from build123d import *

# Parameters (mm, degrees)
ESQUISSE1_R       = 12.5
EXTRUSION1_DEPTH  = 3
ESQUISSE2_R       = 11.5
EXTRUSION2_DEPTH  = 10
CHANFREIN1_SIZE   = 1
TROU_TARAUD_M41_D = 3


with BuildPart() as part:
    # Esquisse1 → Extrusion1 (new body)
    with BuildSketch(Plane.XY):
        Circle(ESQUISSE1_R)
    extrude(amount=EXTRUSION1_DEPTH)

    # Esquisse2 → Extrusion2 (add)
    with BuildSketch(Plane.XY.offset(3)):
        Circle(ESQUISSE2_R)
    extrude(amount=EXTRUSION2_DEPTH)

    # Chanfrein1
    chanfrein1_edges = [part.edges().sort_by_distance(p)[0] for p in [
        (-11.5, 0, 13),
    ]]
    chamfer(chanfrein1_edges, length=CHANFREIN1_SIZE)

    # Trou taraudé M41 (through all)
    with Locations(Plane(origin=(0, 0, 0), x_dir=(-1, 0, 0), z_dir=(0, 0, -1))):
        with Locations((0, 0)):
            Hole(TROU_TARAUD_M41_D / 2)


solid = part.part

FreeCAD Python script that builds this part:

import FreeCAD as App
import Part
import Sketcher


def edges_at(feature, points):
    """Names of the edges that pass closest to the given points."""
    edges = feature.Shape.Edges
    near = lambda p: min(range(len(edges)), key=lambda i: edges[i].distToShape(Part.Vertex(*p))[0])
    return sorted({f"Edge{near(p) + 1}" for p in points})

doc = App.newDocument("Part")
params = doc.addObject("Spreadsheet::Sheet", "Params")
for row, (alias, value) in enumerate([
    ("sketch1_diameter", "25 mm"),
    ("pad1_length", "3 mm"),
    ("sketch2_diameter", "23 mm"),
    ("pad2_length", "10 mm"),
    ("chamfer_size", "1 mm"),
    ("sketch3_diameter", "3 mm"),
    ("hole_diameter", "3 mm"),
], start=1):
    params.set(f"A{row}", alias)
    params.set(f"B{row}", "=" + value)
    params.setAlias(f"B{row}", alias)

body = doc.addObject("PartDesign::Body", "Body")

sketch1 = body.newObject("Sketcher::SketchObject", "Sketch")
sketch1.AttachmentSupport = (doc.getObject("XY_Plane"), [""])
sketch1.MapMode = "FlatFace"
sketch1.addGeometry(Part.Circle(App.Vector(0, 0, 0), App.Vector(0, 0, 1), 12), False)
sketch1.addConstraint(Sketcher.Constraint("Coincident", 0, 3, -1, 1))
sketch1.addConstraint(Sketcher.Constraint("Diameter", 0, 25.0))
sketch1.setExpression("Constraints[1]", "Params.sketch1_diameter")
pad1 = body.newObject("PartDesign::Pad", "Pad")
pad1.Profile = sketch1
pad1.setExpression("Length", "Params.pad1_length")

sketch2 = body.newObject("Sketcher::SketchObject", "Sketch001")
sketch2.AttachmentSupport = (doc.getObject("XY_Plane"), [""])
sketch2.MapMode = "FlatFace"
sketch2.AttachmentOffset = App.Placement(App.Vector(0, 0, 3), App.Rotation())
sketch2.addGeometry(Part.Circle(App.Vector(0, 0, 0), App.Vector(0, 0, 1), 12), False)
sketch2.addConstraint(Sketcher.Constraint("Coincident", 0, 3, -1, 1))
sketch2.addConstraint(Sketcher.Constraint("Diameter", 0, 23.0))
sketch2.setExpression("Constraints[1]", "Params.sketch2_diameter")
pad2 = body.newObject("PartDesign::Pad", "Pad001")
pad2.Profile = sketch2
pad2.setExpression("Length", "Params.pad2_length")
doc.recompute()

chamfer = body.newObject("PartDesign::Chamfer", "Chamfer")
chamfer.Base = (pad2, edges_at(pad2, [(-11.5, 0, 13)]))
chamfer.setExpression("Size", "Params.chamfer_size")

sketch3 = body.newObject("Sketcher::SketchObject", "Sketch002")
sketch3.AttachmentSupport = (doc.getObject("XY_Plane"), [""])
sketch3.MapMode = "FlatFace"
sketch3.addGeometry(Part.Circle(App.Vector(0, 0, 0), App.Vector(0, 0, 1), 1.5), False)
sketch3.addConstraint(Sketcher.Constraint("Coincident", 0, 3, -1, 1))
sketch3.addConstraint(Sketcher.Constraint("Diameter", 0, 3.0))
sketch3.setExpression("Constraints[1]", "Params.sketch3_diameter")
doc.recompute()
hole = body.newObject("PartDesign::Hole", "Hole")
hole.Profile = sketch3
hole.ThreadType = "None"
hole.setExpression("Diameter", "Params.hole_diameter")
hole.DepthType = "ThroughAll"
hole.Reversed = True

doc.recompute()
